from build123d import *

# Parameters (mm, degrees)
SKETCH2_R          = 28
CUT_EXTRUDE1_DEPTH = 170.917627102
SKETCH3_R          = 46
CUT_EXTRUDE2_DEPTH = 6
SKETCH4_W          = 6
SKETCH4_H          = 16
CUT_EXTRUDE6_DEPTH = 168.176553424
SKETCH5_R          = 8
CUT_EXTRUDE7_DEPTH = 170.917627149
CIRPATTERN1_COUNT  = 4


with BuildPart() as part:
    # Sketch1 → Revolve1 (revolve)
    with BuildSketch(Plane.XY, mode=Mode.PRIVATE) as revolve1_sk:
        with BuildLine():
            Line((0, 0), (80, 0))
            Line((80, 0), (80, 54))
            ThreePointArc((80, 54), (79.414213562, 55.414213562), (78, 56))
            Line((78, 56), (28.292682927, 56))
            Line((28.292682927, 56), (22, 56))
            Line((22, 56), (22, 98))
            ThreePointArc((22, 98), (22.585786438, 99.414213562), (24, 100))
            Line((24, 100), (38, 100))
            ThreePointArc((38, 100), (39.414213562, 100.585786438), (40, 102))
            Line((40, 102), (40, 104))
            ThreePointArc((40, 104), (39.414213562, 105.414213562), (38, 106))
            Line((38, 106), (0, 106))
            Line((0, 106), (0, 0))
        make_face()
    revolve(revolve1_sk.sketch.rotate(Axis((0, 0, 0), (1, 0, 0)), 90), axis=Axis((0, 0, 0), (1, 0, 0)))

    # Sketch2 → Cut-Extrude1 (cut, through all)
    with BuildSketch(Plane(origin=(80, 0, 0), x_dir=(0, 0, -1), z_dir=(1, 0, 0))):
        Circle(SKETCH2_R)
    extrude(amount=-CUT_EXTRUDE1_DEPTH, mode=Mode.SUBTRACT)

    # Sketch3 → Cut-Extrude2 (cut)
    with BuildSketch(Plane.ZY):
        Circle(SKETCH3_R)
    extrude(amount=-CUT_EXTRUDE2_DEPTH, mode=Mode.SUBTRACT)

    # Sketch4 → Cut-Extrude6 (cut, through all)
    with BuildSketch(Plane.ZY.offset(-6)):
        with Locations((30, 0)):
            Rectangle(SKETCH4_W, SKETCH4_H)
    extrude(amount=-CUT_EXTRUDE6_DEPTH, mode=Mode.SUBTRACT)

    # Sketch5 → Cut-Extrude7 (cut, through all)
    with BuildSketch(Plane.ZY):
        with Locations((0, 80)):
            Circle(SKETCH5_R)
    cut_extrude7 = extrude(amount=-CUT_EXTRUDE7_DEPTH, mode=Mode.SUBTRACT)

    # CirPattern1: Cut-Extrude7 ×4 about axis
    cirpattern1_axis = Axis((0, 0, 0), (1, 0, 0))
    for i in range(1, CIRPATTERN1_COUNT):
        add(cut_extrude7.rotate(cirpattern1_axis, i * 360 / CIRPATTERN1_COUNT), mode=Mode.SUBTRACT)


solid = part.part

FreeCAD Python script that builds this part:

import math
import FreeCAD as App
import Part
import Sketcher
Q = App.Units.Quantity


def add_polygon(sketch, points):
    """Adds a closed chain of lines whose ends are joined by coincident constraints."""
    first, n = sketch.GeometryCount, len(points)
    for a, b in zip(points, points[1:] + points[:1]):
        sketch.addGeometry(Part.LineSegment(App.Vector(*a, 0), App.Vector(*b, 0)), False)
    for i in range(n):
        sketch.addConstraint(Sketcher.Constraint("Coincident", first + i, 2, first + (i + 1) % n, 1))

doc = App.newDocument("Part")
body = doc.addObject("PartDesign::Body", "Body")

# Sketch on XY plane
sketch1 = doc.addObject("Sketcher::SketchObject", "Sketch")
body.addObject(sketch1)
sketch1.AttachmentSupport = (doc.XY_Plane, [""])
sketch1.MapMode = "FlatFace"
sketch1.addGeometry(Part.LineSegment(App.Vector(0, 0, 0), App.Vector(80, 0, 0)), False)
sketch1.addGeometry(Part.LineSegment(App.Vector(80, 0, 0), App.Vector(80, 54, 0)), False)
sketch1.addGeometry(Part.ArcOfCircle(Part.Circle(App.Vector(78, 54, 0), App.Vector(0, 0, 1), 2), math.radians(0), math.radians(90)), False)
sketch1.addGeometry(Part.LineSegment(App.Vector(78, 56, 0), App.Vector(22, 56, 0)), False)
sketch1.addGeometry(Part.LineSegment(App.Vector(22, 56, 0), App.Vector(22, 98, 0)), False)
sketch1.addGeometry(Part.ArcOfCircle(Part.Circle(App.Vector(24, 98, 0), App.Vector(0, 0, 1), 2), math.radians(90), math.radians(180)), False)
sketch1.addGeometry(Part.LineSegment(App.Vector(24, 100, 0), App.Vector(38, 100, 0)), False)
sketch1.addGeometry(Part.ArcOfCircle(Part.Circle(App.Vector(38, 102, 0), App.Vector(0, 0, 1), 2), math.radians(-90), math.radians(0)), False)
sketch1.addGeometry(Part.LineSegment(App.Vector(40, 102, 0), App.Vector(40, 104, 0)), False)
sketch1.addGeometry(Part.ArcOfCircle(Part.Circle(App.Vector(38, 104, 0), App.Vector(0, 0, 1), 2), math.radians(0), math.radians(90)), False)
sketch1.addGeometry(Part.LineSegment(App.Vector(38, 106, 0), App.Vector(0, 106, 0)), False)
sketch1.addGeometry(Part.LineSegment(App.Vector(0, 106, 0), App.Vector(0, 0, 0)), False)
sketch1.addConstraint(Sketcher.Constraint("Coincident", 0, 2, 1, 1))
sketch1.addConstraint(Sketcher.Constraint("Tangent", 1, 2, 2, 1))
sketch1.addConstraint(Sketcher.Constraint("Tangent", 2, 2, 3, 1))
sketch1.addConstraint(Sketcher.Constraint("Coincident", 3, 2, 4, 1))
sketch1.addConstraint(Sketcher.Constraint("Tangent", 4, 2, 5, 2))
sketch1.addConstraint(Sketcher.Constraint("Tangent", 5, 1, 6, 1))
sketch1.addConstraint(Sketcher.Constraint("Tangent", 6, 2, 7, 1))
sketch1.addConstraint(Sketcher.Constraint("Tangent", 7, 2, 8, 1))
sketch1.addConstraint(Sketcher.Constraint("Tangent", 8, 2, 9, 1))
sketch1.addConstraint(Sketcher.Constraint("Tangent", 9, 2, 10, 1))
sketch1.addConstraint(Sketcher.Constraint("Coincident", 10, 2, 11, 1))
sketch1.addConstraint(Sketcher.Constraint("Coincident", 11, 2, 0, 1))
sketch1.addConstraint(Sketcher.Constraint("Horizontal", 0))
sketch1.addConstraint(Sketcher.Constraint("Vertical", 1))
sketch1.addConstraint(Sketcher.Constraint("Horizontal", 3))
sketch1.addConstraint(Sketcher.Constraint("Vertical", 4))
sketch1.addConstraint(Sketcher.Constraint("Horizontal", 6))
sketch1.addConstraint(Sketcher.Constraint("Vertical", 8))
sketch1.addConstraint(Sketcher.Constraint("Horizontal", 10))
sketch1.addConstraint(Sketcher.Constraint("Vertical", 11))
sketch1.addConstraint(Sketcher.Constraint("Coincident", 11, 2, -1, 1))
sketch1.addConstraint(Sketcher.Constraint("Equal", 2, 5))
sketch1.addConstraint(Sketcher.Constraint("Equal", 5, 7))
sketch1.addConstraint(Sketcher.Constraint("Equal", 7, 9))
sketch1.addConstraint(Sketcher.Constraint("Radius", 2, Q("2 mm")))
sketch1.addConstraint(Sketcher.Constraint("DistanceX", 0, 1, 0, 2, Q("80 mm")))
sketch1.addConstraint(Sketcher.Constraint("DistanceX", 3, 2, 3, 1, Q("56 mm")))
sketch1.addConstraint(Sketcher.Constraint("DistanceX", 6, 1, 6, 2, Q("14 mm")))
sketch1.addConstraint(Sketcher.Constraint("DistanceY", 1, 1, 1, 2, Q("54 mm")))
sketch1.addConstraint(Sketcher.Constraint("DistanceY", 4, 1, 4, 2, Q("42 mm")))
sketch1.addConstraint(Sketcher.Constraint("DistanceY", 8, 1, 8, 2, Q("2 mm")))
revolution = doc.addObject("PartDesign::Revolution", "Revolution")
body.addObject(revolution)
revolution.Profile = sketch1
revolution.ReferenceAxis = (sketch1, ["H_Axis"])
revolution.Angle = 360

# Sketch on YZ plane
sketch2 = doc.addObject("Sketcher::SketchObject", "Sketch001")
body.addObject(sketch2)
sketch2.AttachmentSupport = (doc.YZ_Plane, [""])
sketch2.MapMode = "FlatFace"
sketch2.AttachmentOffset = App.Placement(App.Vector(0, 0, 80), App.Rotation())
sketch2.addGeometry(Part.Circle(App.Vector(0, 0, 0), App.Vector(0, 0, 1), 28), False)
sketch2.addConstraint(Sketcher.Constraint("Coincident", 0, 3, -1, 1))
sketch2.addConstraint(Sketcher.Constraint("Diameter", 0, Q("56 mm")))
pocket1 = doc.addObject("PartDesign::Pocket", "Pocket")
body.addObject(pocket1)
pocket1.Profile = sketch2
pocket1.Type = "ThroughAll"

# Sketch on YZ plane
sketch3 = doc.addObject("Sketcher::SketchObject", "Sketch002")
body.addObject(sketch3)
sketch3.AttachmentSupport = (doc.YZ_Plane, [""])
sketch3.MapMode = "FlatFace"
sketch3.addGeometry(Part.Circle(App.Vector(0, 0, 0), App.Vector(0, 0, 1), 46), False)
sketch3.addConstraint(Sketcher.Constraint("Coincident", 0, 3, -1, 1))
sketch3.addConstraint(Sketcher.Constraint("Diameter", 0, Q("92 mm")))
pocket2 = doc.addObject("PartDesign::Pocket", "Pocket001")
body.addObject(pocket2)
pocket2.Profile = sketch3
pocket2.Length = 6
pocket2.Reversed = True

# Sketch on YZ plane
sketch4 = doc.addObject("Sketcher::SketchObject", "Sketch003")
body.addObject(sketch4)
sketch4.AttachmentSupport = (doc.YZ_Plane, [""])
sketch4.MapMode = "FlatFace"
sketch4.AttachmentOffset = App.Placement(App.Vector(0, 0, 6), App.Rotation())
add_polygon(sketch4, [(8, 27), (-8, 27), (-8, 33), (8, 33)])  # lines 0-3
sketch4.addConstraint(Sketcher.Constraint("Horizontal", 0))
sketch4.addConstraint(Sketcher.Constraint("Vertical", 1))
sketch4.addConstraint(Sketcher.Constraint("Horizontal", 2))
sketch4.addConstraint(Sketcher.Constraint("Vertical", 3))
sketch4.addConstraint(Sketcher.Constraint("DistanceX", 0, 2, 0, 1, Q("16 mm")))
sketch4.addConstraint(Sketcher.Constraint("DistanceY", 1, 1, 1, 2, Q("6 mm")))
sketch4.addConstraint(Sketcher.Constraint("DistanceX", 0, 2, -1, 1, Q("8 mm")))
sketch4.addConstraint(Sketcher.Constraint("DistanceY", -1, 1, 0, 2, Q("27 mm")))
pocket3 = doc.addObject("PartDesign::Pocket", "Pocket002")
body.addObject(pocket3)
pocket3.Profile = sketch4
pocket3.Type = "ThroughAll"
pocket3.Reversed = True

# Sketch on YZ plane
sketch5 = doc.addObject("Sketcher::SketchObject", "Sketch004")
body.addObject(sketch5)
sketch5.AttachmentSupport = (doc.YZ_Plane, [""])
sketch5.MapMode = "FlatFace"
sketch5.addGeometry(Part.Circle(App.Vector(80, 0, 0), App.Vector(0, 0, 1), 8), False)
sketch5.addConstraint(Sketcher.Constraint("PointOnObject", 0, 3, -1))
sketch5.addConstraint(Sketcher.Constraint("Diameter", 0, Q("16 mm")))
sketch5.addConstraint(Sketcher.Constraint("DistanceX", -1, 1, 0, 3, Q("80 mm")))
pocket4 = doc.addObject("PartDesign::Pocket", "Pocket003")
body.addObject(pocket4)
pocket4.Profile = sketch5
pocket4.Type = "ThroughAll"
pocket4.Reversed = True
doc.recompute()

polarpattern = doc.addObject("PartDesign::PolarPattern", "PolarPattern")
body.addObject(polarpattern)
polarpattern.Originals = [pocket4]
polarpattern.Axis = (doc.X_Axis, [""])
polarpattern.Angle = 360
polarpattern.Occurrences = 4
body.Tip = polarpattern

doc.recompute()
